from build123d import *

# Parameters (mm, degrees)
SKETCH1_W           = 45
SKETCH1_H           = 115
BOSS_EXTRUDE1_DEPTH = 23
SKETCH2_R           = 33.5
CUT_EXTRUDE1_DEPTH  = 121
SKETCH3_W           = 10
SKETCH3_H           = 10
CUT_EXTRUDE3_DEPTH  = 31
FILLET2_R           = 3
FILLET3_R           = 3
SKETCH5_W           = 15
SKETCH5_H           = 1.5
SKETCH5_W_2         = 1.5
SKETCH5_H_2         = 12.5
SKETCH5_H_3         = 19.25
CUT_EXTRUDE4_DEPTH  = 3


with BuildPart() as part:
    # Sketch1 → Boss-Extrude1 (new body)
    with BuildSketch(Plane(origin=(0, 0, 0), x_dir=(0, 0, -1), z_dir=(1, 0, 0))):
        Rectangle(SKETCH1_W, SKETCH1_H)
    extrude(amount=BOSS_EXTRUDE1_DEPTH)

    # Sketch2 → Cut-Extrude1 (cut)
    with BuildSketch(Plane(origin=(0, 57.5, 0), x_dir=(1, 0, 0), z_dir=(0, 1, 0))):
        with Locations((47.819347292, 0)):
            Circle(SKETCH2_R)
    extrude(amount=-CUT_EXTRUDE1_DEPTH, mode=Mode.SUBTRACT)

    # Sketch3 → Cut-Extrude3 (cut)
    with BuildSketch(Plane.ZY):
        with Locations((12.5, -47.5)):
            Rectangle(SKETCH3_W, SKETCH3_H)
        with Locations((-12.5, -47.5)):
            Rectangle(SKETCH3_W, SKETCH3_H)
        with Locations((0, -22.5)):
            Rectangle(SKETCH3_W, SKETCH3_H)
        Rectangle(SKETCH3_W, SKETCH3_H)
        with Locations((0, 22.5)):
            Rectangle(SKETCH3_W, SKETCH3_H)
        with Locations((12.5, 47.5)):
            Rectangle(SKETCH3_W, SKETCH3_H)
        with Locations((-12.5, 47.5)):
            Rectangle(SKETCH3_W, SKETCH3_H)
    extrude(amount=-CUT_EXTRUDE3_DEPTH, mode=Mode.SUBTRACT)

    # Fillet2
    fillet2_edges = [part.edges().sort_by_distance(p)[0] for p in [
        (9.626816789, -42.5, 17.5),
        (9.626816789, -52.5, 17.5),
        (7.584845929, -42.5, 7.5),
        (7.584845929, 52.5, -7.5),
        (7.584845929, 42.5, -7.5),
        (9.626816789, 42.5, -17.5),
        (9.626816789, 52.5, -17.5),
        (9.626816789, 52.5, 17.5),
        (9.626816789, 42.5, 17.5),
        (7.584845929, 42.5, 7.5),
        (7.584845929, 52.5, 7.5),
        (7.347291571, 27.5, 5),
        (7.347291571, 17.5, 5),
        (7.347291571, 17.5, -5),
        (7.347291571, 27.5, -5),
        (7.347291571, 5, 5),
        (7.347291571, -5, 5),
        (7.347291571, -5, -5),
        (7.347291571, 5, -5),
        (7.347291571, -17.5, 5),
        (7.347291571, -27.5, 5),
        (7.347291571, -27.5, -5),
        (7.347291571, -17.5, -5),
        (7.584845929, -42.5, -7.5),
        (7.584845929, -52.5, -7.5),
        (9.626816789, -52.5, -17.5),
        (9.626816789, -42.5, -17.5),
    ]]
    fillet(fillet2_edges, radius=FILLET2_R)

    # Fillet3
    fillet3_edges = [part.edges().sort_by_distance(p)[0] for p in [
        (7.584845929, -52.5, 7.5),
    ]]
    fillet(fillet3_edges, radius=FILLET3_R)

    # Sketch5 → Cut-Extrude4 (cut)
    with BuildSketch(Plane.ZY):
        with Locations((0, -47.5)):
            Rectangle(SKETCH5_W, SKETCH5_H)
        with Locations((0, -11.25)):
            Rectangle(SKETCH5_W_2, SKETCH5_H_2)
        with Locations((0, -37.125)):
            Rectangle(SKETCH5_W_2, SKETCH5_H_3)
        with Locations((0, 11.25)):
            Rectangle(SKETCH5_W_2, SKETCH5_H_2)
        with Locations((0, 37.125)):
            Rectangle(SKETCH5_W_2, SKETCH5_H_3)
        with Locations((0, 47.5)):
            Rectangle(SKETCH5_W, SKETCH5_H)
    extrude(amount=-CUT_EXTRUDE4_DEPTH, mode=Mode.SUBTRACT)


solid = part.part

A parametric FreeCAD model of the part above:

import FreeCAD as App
import Part
import Sketcher
from FreeCAD import Vector


def edges_at(feature, points):
    """Names of the edges that pass closest to the given points."""
    edges = feature.Shape.Edges
    near = lambda p: min(range(len(edges)), key=lambda i: edges[i].distToShape(Part.Vertex(*p))[0])
    return sorted({f"Edge{near(p) + 1}" for p in points})

doc = App.newDocument("Part")
body = doc.addObject("PartDesign::Body", "Body")

sketch1 = body.newObject("Sketcher::SketchObject", "Sketch")
sketch1.AttachmentSupport = (doc.getObject("YZ_Plane"), [""])
sketch1.MapMode = "FlatFace"
sketch1.addGeometry([
    Part.LineSegment(Vector(58, 22, 0), Vector(-58, 22, 0)),
    Part.LineSegment(Vector(-58, 22, 0), Vector(-58, -22, 0)),
    Part.LineSegment(Vector(-58, -22, 0), Vector(58, -22, 0)),
    Part.LineSegment(Vector(58, -22, 0), Vector(58, 22, 0)),
], False)
sketch1.addConstraint([
    Sketcher.Constraint("Coincident", 0, 2, 1, 1),
    Sketcher.Constraint("Coincident", 1, 2, 2, 1),
    Sketcher.Constraint("Coincident", 2, 2, 3, 1),
    Sketcher.Constraint("Coincident", 3, 2, 0, 1),
    Sketcher.Constraint("Horizontal", 0),
    Sketcher.Constraint("Vertical", 1),
    Sketcher.Constraint("Horizontal", 2),
    Sketcher.Constraint("Vertical", 3),
    Sketcher.Constraint("Symmetric", 0, 2, 2, 2, -1, 1),
    Sketcher.Constraint("DistanceX", 0, 2, 0, 1, 115.0),
    Sketcher.Constraint("DistanceY", 1, 2, 1, 1, 45.0),
])
pad1 = body.newObject("PartDesign::Pad", "Pad")
pad1.Profile = sketch1
pad1.Length = 23

sketch2 = body.newObject("Sketcher::SketchObject", "Sketch001")
sketch2.AttachmentSupport = (doc.getObject("XZ_Plane"), [""])
sketch2.MapMode = "FlatFace"
sketch2.AttachmentOffset = App.Placement(Vector(0, 0, -57.5), App.Rotation())
sketch2.addGeometry(Part.Circle(Vector(48, 0, 0), Vector(0, 0, 1), 34), False)
sketch2.addConstraint([
    Sketcher.Constraint("PointOnObject", 0, 3, -1),
    Sketcher.Constraint("Diameter", 0, 67.0),
    Sketcher.Constraint("DistanceX", -1, 1, 0, 3, 47.819347),
])
pocket1 = body.newObject("PartDesign::Pocket", "Pocket")
pocket1.Profile = sketch2
pocket1.Length = 121
pocket1.Reversed = True

sketch3 = body.newObject("Sketcher::SketchObject", "Sketch002")
sketch3.AttachmentSupport = (doc.getObject("YZ_Plane"), [""])
sketch3.MapMode = "FlatFace"
sketch3.addGeometry([
    Part.LineSegment(Vector(-42, 8, 0), Vector(-52, 8, 0)),
    Part.LineSegment(Vector(-52, 8, 0), Vector(-52, 18, 0)),
    Part.LineSegment(Vector(-52, 18, 0), Vector(-42, 18, 0)),
    Part.LineSegment(Vector(-42, 18, 0), Vector(-42, 8, 0)),
    Part.LineSegment(Vector(-42, -18, 0), Vector(-52, -18, 0)),
    Part.LineSegment(Vector(-52, -18, 0), Vector(-52, -8, 0)),
    Part.LineSegment(Vector(-52, -8, 0), Vector(-42, -8, 0)),
    Part.LineSegment(Vector(-42, -8, 0), Vector(-42, -18, 0)),
    Part.LineSegment(Vector(-18, -5, 0), Vector(-28, -5, 0)),
    Part.LineSegment(Vector(-28, -5, 0), Vector(-28, 5, 0)),
    Part.LineSegment(Vector(-28, 5, 0), Vector(-18, 5, 0)),
    Part.LineSegment(Vector(-18, 5, 0), Vector(-18, -5, 0)),
    Part.LineSegment(Vector(5, -5, 0), Vector(-5, -5, 0)),
    Part.LineSegment(Vector(-5, -5, 0), Vector(-5, 5, 0)),
    Part.LineSegment(Vector(-5, 5, 0), Vector(5, 5, 0)),
    Part.LineSegment(Vector(5, 5, 0), Vector(5, -5, 0)),
    Part.LineSegment(Vector(28, -5, 0), Vector(18, -5, 0)),
    Part.LineSegment(Vector(18, -5, 0), Vector(18, 5, 0)),
    Part.LineSegment(Vector(18, 5, 0), Vector(28, 5, 0)),
    Part.LineSegment(Vector(28, 5, 0), Vector(28, -5, 0)),
    Part.LineSegment(Vector(52, 8, 0), Vector(42, 8, 0)),
    Part.LineSegment(Vector(42, 8, 0), Vector(42, 18, 0)),
    Part.LineSegment(Vector(42, 18, 0), Vector(52, 18, 0)),
    Part.LineSegment(Vector(52, 18, 0), Vector(52, 8, 0)),
    Part.LineSegment(Vector(52, -18, 0), Vector(42, -18, 0)),
    Part.LineSegment(Vector(42, -18, 0), Vector(42, -8, 0)),
    Part.LineSegment(Vector(42, -8, 0), Vector(52, -8, 0)),
    Part.LineSegment(Vector(52, -8, 0), Vector(52, -18, 0)),
], False)
sketch3.addConstraint([
    Sketcher.Constraint("Coincident", 0, 2, 1, 1),
    Sketcher.Constraint("Coincident", 1, 2, 2, 1),
    Sketcher.Constraint("Coincident", 2, 2, 3, 1),
    Sketcher.Constraint("Coincident", 3, 2, 0, 1),
    Sketcher.Constraint("Coincident", 4, 2, 5, 1),
    Sketcher.Constraint("Coincident", 5, 2, 6, 1),
    Sketcher.Constraint("Coincident", 6, 2, 7, 1),
    Sketcher.Constraint("Coincident", 7, 2, 4, 1),
    Sketcher.Constraint("Coincident", 8, 2, 9, 1),
    Sketcher.Constraint("Coincident", 9, 2, 10, 1),
    Sketcher.Constraint("Coincident", 10, 2, 11, 1),
    Sketcher.Constraint("Coincident", 11, 2, 8, 1),
    Sketcher.Constraint("Coincident", 12, 2, 13, 1),
    Sketcher.Constraint("Coincident", 13, 2, 14, 1),
    Sketcher.Constraint("Coincident", 14, 2, 15, 1),
    Sketcher.Constraint("Coincident", 15, 2, 12, 1),
    Sketcher.Constraint("Coincident", 16, 2, 17, 1),
    Sketcher.Constraint("Coincident", 17, 2, 18, 1),
    Sketcher.Constraint("Coincident", 18, 2, 19, 1),
    Sketcher.Constraint("Coincident", 19, 2, 16, 1),
    Sketcher.Constraint("Coincident", 20, 2, 21, 1),
    Sketcher.Constraint("Coincident", 21, 2, 22, 1),
    Sketcher.Constraint("Coincident", 22, 2, 23, 1),
    Sketcher.Constraint("Coincident", 23, 2, 20, 1),
    Sketcher.Constraint("Coincident", 24, 2, 25, 1),
    Sketcher.Constraint("Coincident", 25, 2, 26, 1),
    Sketcher.Constraint("Coincident", 26, 2, 27, 1),
    Sketcher.Constraint("Coincident", 27, 2, 24, 1),
    Sketcher.Constraint("Horizontal", 0),
    Sketcher.Constraint("Vertical", 1),
    Sketcher.Constraint("Horizontal", 2),
    Sketcher.Constraint("Vertical", 3),
    Sketcher.Constraint("Horizontal", 4),
    Sketcher.Constraint("Vertical", 5),
    Sketcher.Constraint("Horizontal", 6),
    Sketcher.Constraint("Vertical", 7),
    Sketcher.Constraint("Horizontal", 8),
    Sketcher.Constraint("Vertical", 9),
    Sketcher.Constraint("Horizontal", 10),
    Sketcher.Constraint("Vertical", 11),
    Sketcher.Constraint("Horizontal", 12),
    Sketcher.Constraint("Vertical", 13),
    Sketcher.Constraint("Horizontal", 14),
    Sketcher.Constraint("Vertical", 15),
    Sketcher.Constraint("Horizontal", 16),
    Sketcher.Constraint("Vertical", 17),
    Sketcher.Constraint("Horizontal", 18),
    Sketcher.Constraint("Vertical", 19),
    Sketcher.Constraint("Horizontal", 20),
    Sketcher.Constraint("Vertical", 21),
    Sketcher.Constraint("Horizontal", 22),
    Sketcher.Constraint("Vertical", 23),
    Sketcher.Constraint("Horizontal", 24),
    Sketcher.Constraint("Vertical", 25),
    Sketcher.Constraint("Horizontal", 26),
    Sketcher.Constraint("Vertical", 27),
    Sketcher.Constraint("Symmetric", 12, 2, 14, 2, -1, 1),
    Sketcher.Constraint("Symmetric", 10, 2, 16, 2, -1, 1),
    Sketcher.Constraint("Symmetric", 8, 2, 18, 2, -1, 1),
    Sketcher.Constraint("Symmetric", 6, 2, 20, 2, -1, 1),
    Sketcher.Constraint("Symmetric", 4, 2, 22, 2, -1, 1),
    Sketcher.Constraint("Symmetric", 2, 2, 24, 2, -1, 1),
    Sketcher.Constraint("Symmetric", 0, 2, 26, 2, -1, 1),
    Sketcher.Constraint("Symmetric", 3, 2, 20, 2, -2),
    Sketcher.Constraint("Symmetric", 1, 2, 22, 2, -2),
    Sketcher.Constraint("Horizontal", 11, 2, 12, 2),
    Sketcher.Constraint("Horizontal", 10, 2, 13, 2),
    Sketcher.Constraint("Equal", 6, 8),
    Sketcher.Constraint("Equal", 10, 12),
    Sketcher.Constraint("Equal", 26, 1),
    Sketcher.Constraint("Equal", 7, 9),
    Sketcher.Constraint("DistanceX", 0, 2, 0, 1, 10.0),
    Sketcher.Constraint("DistanceY", 4, 2, 0, 2, 25.0),
    Sketcher.Constraint("DistanceX", 6, 2, 8, 2, 15.0),
    Sketcher.Constraint("DistanceX", 11, 2, 16, 2, 35.0),
])
pocket2 = body.newObject("PartDesign::Pocket", "Pocket001")
pocket2.Profile = sketch3
pocket2.Length = 31
pocket2.Reversed = True
doc.recompute()

fillet = body.newObject("PartDesign::Fillet", "Fillet")
fillet.Base = (pocket2, edges_at(pocket2, [
    (9.627, -42.5, 17.5),
    (9.627, -52.5, 17.5),
    (7.585, -42.5, 7.5),
    (7.585, 52.5, -7.5),
    (7.585, 42.5, -7.5),
    (9.627, 42.5, -17.5),
    (9.627, 52.5, -17.5),
    (9.627, 52.5, 17.5),
    (9.627, 42.5, 17.5),
    (7.585, 42.5, 7.5),
    (7.585, 52.5, 7.5),
    (7.347, 27.5, 5),
    (7.347, 17.5, 5),
    (7.347, 17.5, -5),
    (7.347, 27.5, -5),
    (7.347, 5, 5),
    (7.347, -5, 5),
    (7.347, -5, -5),
    (7.347, 5, -5),
    (7.347, -17.5, 5),
    (7.347, -27.5, 5),
    (7.347, -27.5, -5),
    (7.347, -17.5, -5),
    (7.585, -42.5, -7.5),
    (7.585, -52.5, -7.5),
    (9.627, -52.5, -17.5),
    (9.627, -42.5, -17.5),
]))
fillet.Radius = 3
doc.recompute()

fillet2 = body.newObject("PartDesign::Fillet", "Fillet001")
fillet2.Base = (fillet, edges_at(fillet, [(7.585, -52.5, 7.5)]))
fillet2.Radius = 3

sketch4 = body.newObject("Sketcher::SketchObject", "Sketch003")
sketch4.AttachmentSupport = (doc.getObject("YZ_Plane"), [""])
sketch4.MapMode = "FlatFace"
sketch4.addGeometry([
    Part.LineSegment(Vector(-46.8, -7.5, 0), Vector(-48.2, -7.5, 0)),
    Part.LineSegment(Vector(-48.2, -7.5, 0), Vector(-48.2, 7.5, 0)),
    Part.LineSegment(Vector(-48.2, 7.5, 0), Vector(-46.8, 7.5, 0)),
    Part.LineSegment(Vector(-46.8, 7.5, 0), Vector(-46.8, 0.8, 0)),
    Part.LineSegment(Vector(-46.8, 0.8, 0), Vector(-27.5, 0.8, 0)),
    Part.LineSegment(Vector(-27.5, 0.8, 0), Vector(-27.5, -0.8, 0)),
    Part.LineSegment(Vector(-27.5, -0.8, 0), Vector(-46.8, -0.8, 0)),
    Part.LineSegment(Vector(-46.8, -0.8, 0), Vector(-46.8, -7.5, 0)),
    Part.LineSegment(Vector(-5, -0.8, 0), Vector(-17.5, -0.8, 0)),
    Part.LineSegment(Vector(-17.5, -0.8, 0), Vector(-17.5, 0.8, 0)),
    Part.LineSegment(Vector(-17.5, 0.8, 0), Vector(-5, 0.8, 0)),
    Part.LineSegment(Vector(-5, 0.8, 0), Vector(-5, -0.8, 0)),
    Part.LineSegment(Vector(17.5, -0.8, 0), Vector(5, -0.8, 0)),
    Part.LineSegment(Vector(5, -0.8, 0), Vector(5, 0.8, 0)),
    Part.LineSegment(Vector(5, 0.8, 0), Vector(17.5, 0.8, 0)),
    Part.LineSegment(Vector(17.5, 0.8, 0), Vector(17.5, -0.8, 0)),
    Part.LineSegment(Vector(46.8, -0.8, 0), Vector(27.5, -0.8, 0)),
    Part.LineSegment(Vector(27.5, -0.8, 0), Vector(27.5, 0.8, 0)),
    Part.LineSegment(Vector(27.5, 0.8, 0), Vector(46.8, 0.8, 0)),
    Part.LineSegment(Vector(46.8, 0.8, 0), Vector(46.8, 7.5, 0)),
    Part.LineSegment(Vector(46.8, 7.5, 0), Vector(48.2, 7.5, 0)),
    Part.LineSegment(Vector(48.2, 7.5, 0), Vector(48.2, -7.5, 0)),
    Part.LineSegment(Vector(48.2, -7.5, 0), Vector(46.8, -7.5, 0)),
    Part.LineSegment(Vector(46.8, -7.5, 0), Vector(46.8, -0.8, 0)),
], False)
sketch4.addConstraint([
    Sketcher.Constraint("Coincident", 0, 2, 1, 1),
    Sketcher.Constraint("Coincident", 1, 2, 2, 1),
    Sketcher.Constraint("Coincident", 2, 2, 3, 1),
    Sketcher.Constraint("Coincident", 3, 2, 4, 1),
    Sketcher.Constraint("Coincident", 4, 2, 5, 1),
    Sketcher.Constraint("Coincident", 5, 2, 6, 1),
    Sketcher.Constraint("Coincident", 6, 2, 7, 1),
    Sketcher.Constraint("Coincident", 7, 2, 0, 1),
    Sketcher.Constraint("Coincident", 8, 2, 9, 1),
    Sketcher.Constraint("Coincident", 9, 2, 10, 1),
    Sketcher.Constraint("Coincident", 10, 2, 11, 1),
    Sketcher.Constraint("Coincident", 11, 2, 8, 1),
    Sketcher.Constraint("Coincident", 12, 2, 13, 1),
    Sketcher.Constraint("Coincident", 13, 2, 14, 1),
    Sketcher.Constraint("Coincident", 14, 2, 15, 1),
    Sketcher.Constraint("Coincident", 15, 2, 12, 1),
    Sketcher.Constraint("Coincident", 16, 2, 17, 1),
    Sketcher.Constraint("Coincident", 17, 2, 18, 1),
    Sketcher.Constraint("Coincident", 18, 2, 19, 1),
    Sketcher.Constraint("Coincident", 19, 2, 20, 1),
    Sketcher.Constraint("Coincident", 20, 2, 21, 1),
    Sketcher.Constraint("Coincident", 21, 2, 22, 1),
    Sketcher.Constraint("Coincident", 22, 2, 23, 1),
    Sketcher.Constraint("Coincident", 23, 2, 16, 1),
    Sketcher.Constraint("Horizontal", 0),
    Sketcher.Constraint("Vertical", 1),
    Sketcher.Constraint("Horizontal", 2),
    Sketcher.Constraint("Vertical", 3),
    Sketcher.Constraint("Horizontal", 4),
    Sketcher.Constraint("Vertical", 5),
    Sketcher.Constraint("Horizontal", 6),
    Sketcher.Constraint("Vertical", 7),
    Sketcher.Constraint("Horizontal", 8),
    Sketcher.Constraint("Vertical", 9),
    Sketcher.Constraint("Horizontal", 10),
    Sketcher.Constraint("Vertical", 11),
    Sketcher.Constraint("Horizontal", 12),
    Sketcher.Constraint("Vertical", 13),
    Sketcher.Constraint("Horizontal", 14),
    Sketcher.Constraint("Vertical", 15),
    Sketcher.Constraint("Horizontal", 16),
    Sketcher.Constraint("Vertical", 17),
    Sketcher.Constraint("Horizontal", 18),
    Sketcher.Constraint("Vertical", 19),
    Sketcher.Constraint("Horizontal", 20),
    Sketcher.Constraint("Vertical", 21),
    Sketcher.Constraint("Horizontal", 22),
    Sketcher.Constraint("Vertical", 23),
    Sketcher.Constraint("Symmetric", 10, 2, 12, 2, -1, 1),
    Sketcher.Constraint("Symmetric", 8, 2, 14, 2, -1, 1),
    Sketcher.Constraint("Symmetric", 4, 2, 16, 2, -1, 1),
    Sketcher.Constraint("Symmetric", 6, 2, 18, 2, -1, 1),
    Sketcher.Constraint("Symmetric", 0, 2, 20, 2, -1, 1),
    Sketcher.Constraint("Symmetric", 2, 2, 22, 2, -1, 1),
    Sketcher.Constraint("Symmetric", 3, 2, 18, 2, -2),
    Sketcher.Constraint("Horizontal", 6, 2, 8, 2),
    Sketcher.Constraint("Horizontal", 4, 2, 9, 2),
    Sketcher.Constraint("Horizontal", 2, 2, 19, 2),
    Sketcher.Constraint("Equal", 22, 5),
    Sketcher.Constraint("DistanceY", 1, 1, 1, 2, 15.0),
    Sketcher.Constraint("DistanceX", 0, 2, 0, 1, 1.5),
    Sketcher.Constraint("DistanceX", 8, 2, 8, 1, 12.5),
    Sketcher.Constraint("DistanceX", 10, 2, -1, 1, 5.0),
    Sketcher.Constraint("DistanceX", 5, 2, 8, 2, 10.0),
    Sketcher.Constraint("DistanceX", 4, 1, 4, 2, 19.25),
])
pocket3 = body.newObject("PartDesign::Pocket", "Pocket002")
pocket3.Profile = sketch4
pocket3.Length = 3
pocket3.Reversed = True

doc.recompute()
